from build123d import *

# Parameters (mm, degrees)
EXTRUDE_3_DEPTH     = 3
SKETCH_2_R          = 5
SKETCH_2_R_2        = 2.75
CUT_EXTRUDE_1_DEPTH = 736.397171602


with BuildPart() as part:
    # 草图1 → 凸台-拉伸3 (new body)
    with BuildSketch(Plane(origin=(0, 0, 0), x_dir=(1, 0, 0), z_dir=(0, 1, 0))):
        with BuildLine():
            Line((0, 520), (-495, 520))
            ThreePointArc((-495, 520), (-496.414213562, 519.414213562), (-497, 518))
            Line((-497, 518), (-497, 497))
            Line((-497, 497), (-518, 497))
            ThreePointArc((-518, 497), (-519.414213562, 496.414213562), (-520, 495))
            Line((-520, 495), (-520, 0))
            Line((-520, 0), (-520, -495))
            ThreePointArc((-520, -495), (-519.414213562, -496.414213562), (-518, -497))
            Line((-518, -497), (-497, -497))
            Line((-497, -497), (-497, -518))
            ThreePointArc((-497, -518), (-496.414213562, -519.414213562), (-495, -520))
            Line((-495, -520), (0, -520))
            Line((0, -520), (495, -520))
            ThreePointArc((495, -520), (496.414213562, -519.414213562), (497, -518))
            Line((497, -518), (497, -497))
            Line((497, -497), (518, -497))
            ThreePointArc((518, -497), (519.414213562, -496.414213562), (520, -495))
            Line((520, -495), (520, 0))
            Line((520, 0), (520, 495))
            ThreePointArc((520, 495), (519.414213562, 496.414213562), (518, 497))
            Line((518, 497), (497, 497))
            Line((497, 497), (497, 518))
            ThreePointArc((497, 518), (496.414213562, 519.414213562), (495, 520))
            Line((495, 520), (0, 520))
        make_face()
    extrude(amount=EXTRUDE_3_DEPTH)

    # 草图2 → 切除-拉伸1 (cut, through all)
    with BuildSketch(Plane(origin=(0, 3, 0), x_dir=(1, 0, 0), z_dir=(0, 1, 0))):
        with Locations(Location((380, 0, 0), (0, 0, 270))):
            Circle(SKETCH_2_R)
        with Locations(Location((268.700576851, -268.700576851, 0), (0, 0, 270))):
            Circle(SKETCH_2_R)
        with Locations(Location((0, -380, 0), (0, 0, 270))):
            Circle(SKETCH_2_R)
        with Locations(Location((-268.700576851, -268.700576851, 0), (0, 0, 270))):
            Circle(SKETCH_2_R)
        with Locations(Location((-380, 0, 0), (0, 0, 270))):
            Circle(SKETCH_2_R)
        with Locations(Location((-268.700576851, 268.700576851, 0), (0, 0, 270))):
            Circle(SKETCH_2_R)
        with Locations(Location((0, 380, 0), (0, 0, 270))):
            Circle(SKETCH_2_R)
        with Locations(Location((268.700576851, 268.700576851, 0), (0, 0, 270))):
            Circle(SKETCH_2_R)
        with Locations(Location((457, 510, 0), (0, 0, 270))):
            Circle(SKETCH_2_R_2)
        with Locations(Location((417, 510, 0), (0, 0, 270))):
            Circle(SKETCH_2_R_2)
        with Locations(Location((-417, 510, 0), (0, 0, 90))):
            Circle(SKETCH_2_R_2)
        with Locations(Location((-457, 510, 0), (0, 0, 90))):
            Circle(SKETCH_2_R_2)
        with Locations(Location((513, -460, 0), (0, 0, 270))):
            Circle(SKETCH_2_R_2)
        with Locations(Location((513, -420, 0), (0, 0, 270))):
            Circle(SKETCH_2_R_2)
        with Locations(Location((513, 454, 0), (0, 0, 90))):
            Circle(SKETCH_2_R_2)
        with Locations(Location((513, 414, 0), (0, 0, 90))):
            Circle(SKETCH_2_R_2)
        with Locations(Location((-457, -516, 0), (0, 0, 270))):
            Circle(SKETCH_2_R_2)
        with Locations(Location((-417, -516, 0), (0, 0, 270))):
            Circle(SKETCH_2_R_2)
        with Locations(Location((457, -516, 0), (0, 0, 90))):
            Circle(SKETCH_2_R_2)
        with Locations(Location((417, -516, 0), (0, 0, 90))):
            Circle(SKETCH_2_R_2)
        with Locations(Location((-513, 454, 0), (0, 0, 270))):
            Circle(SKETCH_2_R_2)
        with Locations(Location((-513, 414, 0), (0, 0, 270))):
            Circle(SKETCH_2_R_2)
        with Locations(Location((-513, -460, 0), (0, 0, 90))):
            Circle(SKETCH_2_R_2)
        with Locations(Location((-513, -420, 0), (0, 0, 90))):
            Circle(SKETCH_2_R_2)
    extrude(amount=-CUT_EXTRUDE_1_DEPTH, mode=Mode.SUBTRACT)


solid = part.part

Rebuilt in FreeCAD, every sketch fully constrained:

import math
import FreeCAD as App
import Part
import Sketcher

doc = App.newDocument("Part")
body = doc.addObject("PartDesign::Body", "Body")

sketch1 = body.newObject("Sketcher::SketchObject", "Sketch")
sketch1.AttachmentSupport = (doc.getObject("XZ_Plane"), [""])
sketch1.MapMode = "FlatFace"
sketch1.addGeometry(Part.ArcOfCircle(Part.Circle(App.Vector(-495, -518, 0), App.Vector(0, 0, 1), 2), math.radians(-180), math.radians(-90)), False)
sketch1.addGeometry(Part.LineSegment(App.Vector(-497, -518, 0), App.Vector(-497, -497, 0)), False)
sketch1.addGeometry(Part.LineSegment(App.Vector(-497, -497, 0), App.Vector(-518, -497, 0)), False)
sketch1.addGeometry(Part.ArcOfCircle(Part.Circle(App.Vector(-518, -495, 0), App.Vector(0, 0, 1), 2), math.radians(-180), math.radians(-90)), False)
sketch1.addGeometry(Part.LineSegment(App.Vector(-520, -495, 0), App.Vector(-520, 495, 0)), False)
sketch1.addGeometry(Part.ArcOfCircle(Part.Circle(App.Vector(-518, 495, 0), App.Vector(0, 0, 1), 2), math.radians(90), math.radians(180)), False)
sketch1.addGeometry(Part.LineSegment(App.Vector(-518, 497, 0), App.Vector(-497, 497, 0)), False)
sketch1.addGeometry(Part.LineSegment(App.Vector(-497, 497, 0), App.Vector(-497, 518, 0)), False)
sketch1.addGeometry(Part.ArcOfCircle(Part.Circle(App.Vector(-495, 518, 0), App.Vector(0, 0, 1), 2), math.radians(90), math.radians(180)), False)
sketch1.addGeometry(Part.LineSegment(App.Vector(-495, 520, 0), App.Vector(495, 520, 0)), False)
sketch1.addGeometry(Part.ArcOfCircle(Part.Circle(App.Vector(495, 518, 0), App.Vector(0, 0, 1), 2), math.radians(0), math.radians(90)), False)
sketch1.addGeometry(Part.LineSegment(App.Vector(497, 518, 0), App.Vector(497, 497, 0)), False)
sketch1.addGeometry(Part.LineSegment(App.Vector(497, 497, 0), App.Vector(518, 497, 0)), False)
sketch1.addGeometry(Part.ArcOfCircle(Part.Circle(App.Vector(518, 495, 0), App.Vector(0, 0, 1), 2), math.radians(0), math.radians(90)), False)
sketch1.addGeometry(Part.LineSegment(App.Vector(520, 495, 0), App.Vector(520, -495, 0)), False)
sketch1.addGeometry(Part.ArcOfCircle(Part.Circle(App.Vector(518, -495, 0), App.Vector(0, 0, 1), 2), math.radians(-90), math.radians(0)), False)
sketch1.addGeometry(Part.LineSegment(App.Vector(518, -497, 0), App.Vector(497, -497, 0)), False)
sketch1.addGeometry(Part.LineSegment(App.Vector(497, -497, 0), App.Vector(497, -518, 0)), False)
sketch1.addGeometry(Part.ArcOfCircle(Part.Circle(App.Vector(495, -518, 0), App.Vector(0, 0, 1), 2), math.radians(-90), math.radians(0)), False)
sketch1.addGeometry(Part.LineSegment(App.Vector(495, -520, 0), App.Vector(-495, -520, 0)), False)
sketch1.addConstraint(Sketcher.Constraint("Tangent", 0, 1, 1, 1))
sketch1.addConstraint(Sketcher.Constraint("Coincident", 1, 2, 2, 1))
sketch1.addConstraint(Sketcher.Constraint("Tangent", 2, 2, 3, 2))
sketch1.addConstraint(Sketcher.Constraint("Tangent", 3, 1, 4, 1))
sketch1.addConstraint(Sketcher.Constraint("Tangent", 4, 2, 5, 2))
sketch1.addConstraint(Sketcher.Constraint("Tangent", 5, 1, 6, 1))
sketch1.addConstraint(Sketcher.Constraint("Coincident", 6, 2, 7, 1))
sketch1.addConstraint(Sketcher.Constraint("Tangent", 7, 2, 8, 2))
sketch1.addConstraint(Sketcher.Constraint("Tangent", 8, 1, 9, 1))
sketch1.addConstraint(Sketcher.Constraint("Tangent", 9, 2, 10, 2))
sketch1.addConstraint(Sketcher.Constraint("Tangent", 10, 1, 11, 1))
sketch1.addConstraint(Sketcher.Constraint("Coincident", 11, 2, 12, 1))
sketch1.addConstraint(Sketcher.Constraint("Tangent", 12, 2, 13, 2))
sketch1.addConstraint(Sketcher.Constraint("Tangent", 13, 1, 14, 1))
sketch1.addConstraint(Sketcher.Constraint("Tangent", 14, 2, 15, 2))
sketch1.addConstraint(Sketcher.Constraint("Tangent", 15, 1, 16, 1))
sketch1.addConstraint(Sketcher.Constraint("Coincident", 16, 2, 17, 1))
sketch1.addConstraint(Sketcher.Constraint("Tangent", 17, 2, 18, 2))
sketch1.addConstraint(Sketcher.Constraint("Tangent", 18, 1, 19, 1))
sketch1.addConstraint(Sketcher.Constraint("Tangent", 19, 2, 0, 2))
sketch1.addConstraint(Sketcher.Constraint("Vertical", 1))
sketch1.addConstraint(Sketcher.Constraint("Horizontal", 2))
sketch1.addConstraint(Sketcher.Constraint("Vertical", 4))
sketch1.addConstraint(Sketcher.Constraint("Horizontal", 6))
sketch1.addConstraint(Sketcher.Constraint("Vertical", 7))
sketch1.addConstraint(Sketcher.Constraint("Horizontal", 9))
sketch1.addConstraint(Sketcher.Constraint("Vertical", 11))
sketch1.addConstraint(Sketcher.Constraint("Horizontal", 12))
sketch1.addConstraint(Sketcher.Constraint("Vertical", 14))
sketch1.addConstraint(Sketcher.Constraint("Horizontal", 16))
sketch1.addConstraint(Sketcher.Constraint("Vertical", 17))
sketch1.addConstraint(Sketcher.Constraint("Horizontal", 19))
sketch1.addConstraint(Sketcher.Constraint("Equal", 0, 3))
sketch1.addConstraint(Sketcher.Constraint("Equal", 3, 5))
sketch1.addConstraint(Sketcher.Constraint("Equal", 5, 8))
sketch1.addConstraint(Sketcher.Constraint("Equal", 8, 10))
sketch1.addConstraint(Sketcher.Constraint("Equal", 10, 13))
sketch1.addConstraint(Sketcher.Constraint("Equal", 13, 15))
sketch1.addConstraint(Sketcher.Constraint("Equal", 15, 18))
sketch1.addConstraint(Sketcher.Constraint("Symmetric", 0, 3, 10, 3, -1, 1))
sketch1.addConstraint(Sketcher.Constraint("Symmetric", 3, 3, 13, 3, -1, 1))
sketch1.addConstraint(Sketcher.Constraint("Symmetric", 6, 2, 16, 2, -1, 1))
sketch1.addConstraint(Sketcher.Constraint("Symmetric", 6, 2, 11, 2, -2))
sketch1.addConstraint(Sketcher.Constraint("Equal", 16, 1))
sketch1.addConstraint(Sketcher.Constraint("Equal", 19, 4))
sketch1.addConstraint(Sketcher.Constraint("Radius", 0, 2.0))
sketch1.addConstraint(Sketcher.Constraint("DistanceX", 2, 2, 2, 1, 21.0))
sketch1.addConstraint(Sketcher.Constraint("DistanceX", 9, 1, 9, 2, 990.0))
pad1 = body.newObject("PartDesign::Pad", "Pad")
pad1.Profile = sketch1
pad1.Length = 3
pad1.Reversed = True

sketch2 = body.newObject("Sketcher::SketchObject", "Sketch001")
sketch2.AttachmentSupport = (doc.getObject("XZ_Plane"), [""])
sketch2.MapMode = "FlatFace"
sketch2.AttachmentOffset = App.Placement(App.Vector(0, 0, -3), App.Rotation())
sketch2.addGeometry(Part.Circle(App.Vector(380, 0, 0), App.Vector(0, 0, 1), 5), False)
sketch2.addGeometry(Part.Circle(App.Vector(268.7, 268.7, 0), App.Vector(0, 0, 1), 5), False)
sketch2.addGeometry(Part.Circle(App.Vector(0, 380, 0), App.Vector(0, 0, 1), 5), False)
sketch2.addGeometry(Part.Circle(App.Vector(-268.7, 268.7, 0), App.Vector(0, 0, 1), 5), False)
sketch2.addGeometry(Part.Circle(App.Vector(-380, 0, 0), App.Vector(0, 0, 1), 5), False)
sketch2.addGeometry(Part.Circle(App.Vector(-268.7, -268.7, 0), App.Vector(0, 0, 1), 5), False)
sketch2.addGeometry(Part.Circle(App.Vector(0, -380, 0), App.Vector(0, 0, 1), 5), False)
sketch2.addGeometry(Part.Circle(App.Vector(268.7, -268.7, 0), App.Vector(0, 0, 1), 5), False)
sketch2.addGeometry(Part.Circle(App.Vector(457, -510, 0), App.Vector(0, 0, 1), 2.8), False)
sketch2.addGeometry(Part.Circle(App.Vector(417, -510, 0), App.Vector(0, 0, 1), 2.8), False)
sketch2.addGeometry(Part.Circle(App.Vector(-417, -510, 0), App.Vector(0, 0, 1), 2.8), False)
sketch2.addGeometry(Part.Circle(App.Vector(-457, -510, 0), App.Vector(0, 0, 1), 2.8), False)
sketch2.addGeometry(Part.Circle(App.Vector(513, 460, 0), App.Vector(0, 0, 1), 2.8), False)
sketch2.addGeometry(Part.Circle(App.Vector(513, 420, 0), App.Vector(0, 0, 1), 2.8), False)
sketch2.addGeometry(Part.Circle(App.Vector(513, -454, 0), App.Vector(0, 0, 1), 2.8), False)
sketch2.addGeometry(Part.Circle(App.Vector(513, -414, 0), App.Vector(0, 0, 1), 2.8), False)
sketch2.addGeometry(Part.Circle(App.Vector(-457, 516, 0), App.Vector(0, 0, 1), 2.8), False)
sketch2.addGeometry(Part.Circle(App.Vector(-417, 516, 0), App.Vector(0, 0, 1), 2.8), False)
sketch2.addGeometry(Part.Circle(App.Vector(457, 516, 0), App.Vector(0, 0, 1), 2.8), False)
sketch2.addGeometry(Part.Circle(App.Vector(417, 516, 0), App.Vector(0, 0, 1), 2.8), False)
sketch2.addGeometry(Part.Circle(App.Vector(-513, -454, 0), App.Vector(0, 0, 1), 2.8), False)
sketch2.addGeometry(Part.Circle(App.Vector(-513, -414, 0), App.Vector(0, 0, 1), 2.8), False)
sketch2.addGeometry(Part.Circle(App.Vector(-513, 460, 0), App.Vector(0, 0, 1), 2.8), False)
sketch2.addGeometry(Part.Circle(App.Vector(-513, 420, 0), App.Vector(0, 0, 1), 2.8), False)
sketch2.addConstraint(Sketcher.Constraint("Equal", 0, 1))
sketch2.addConstraint(Sketcher.Constraint("Equal", 1, 2))
sketch2.addConstraint(Sketcher.Constraint("Equal", 2, 3))
sketch2.addConstraint(Sketcher.Constraint("Equal", 3, 4))
sketch2.addConstraint(Sketcher.Constraint("Equal", 4, 5))
sketch2.addConstraint(Sketcher.Constraint("Equal", 5, 6))
sketch2.addConstraint(Sketcher.Constraint("Equal", 6, 7))
sketch2.addConstraint(Sketcher.Constraint("Equal", 8, 9))
sketch2.addConstraint(Sketcher.Constraint("Equal", 9, 10))
sketch2.addConstraint(Sketcher.Constraint("Equal", 10, 11))
sketch2.addConstraint(Sketcher.Constraint("Equal", 11, 12))
sketch2.addConstraint(Sketcher.Constraint("Equal", 12, 13))
sketch2.addConstraint(Sketcher.Constraint("Equal", 13, 14))
sketch2.addConstraint(Sketcher.Constraint("Equal", 14, 15))
sketch2.addConstraint(Sketcher.Constraint("Equal", 15, 16))
sketch2.addConstraint(Sketcher.Constraint("Equal", 16, 17))
sketch2.addConstraint(Sketcher.Constraint("Equal", 17, 18))
sketch2.addConstraint(Sketcher.Constraint("Equal", 18, 19))
sketch2.addConstraint(Sketcher.Constraint("Equal", 19, 20))
sketch2.addConstraint(Sketcher.Constraint("Equal", 20, 21))
sketch2.addConstraint(Sketcher.Constraint("Equal", 21, 22))
sketch2.addConstraint(Sketcher.Constraint("Equal", 22, 23))
sketch2.addConstraint(Sketcher.Constraint("Symmetric", 0, 3, 4, 3, -1, 1))
sketch2.addConstraint(Sketcher.Constraint("Symmetric", 1, 3, 5, 3, -1, 1))
sketch2.addConstraint(Sketcher.Constraint("Symmetric", 2, 3, 6, 3, -1, 1))
sketch2.addConstraint(Sketcher.Constraint("Symmetric", 3, 3, 7, 3, -1, 1))
sketch2.addConstraint(Sketcher.Constraint("Symmetric", 1, 3, 3, 3, -2))
sketch2.addConstraint(Sketcher.Constraint("Symmetric", 9, 3, 10, 3, -2))
sketch2.addConstraint(Sketcher.Constraint("Symmetric", 8, 3, 11, 3, -2))
sketch2.addConstraint(Sketcher.Constraint("Symmetric", 16, 3, 18, 3, -2))
sketch2.addConstraint(Sketcher.Constraint("Symmetric", 17, 3, 19, 3, -2))
sketch2.addConstraint(Sketcher.Constraint("Symmetric", 14, 3, 20, 3, -2))
sketch2.addConstraint(Sketcher.Constraint("Symmetric", 15, 3, 21, 3, -2))
sketch2.addConstraint(Sketcher.Constraint("Symmetric", 12, 3, 22, 3, -2))
sketch2.addConstraint(Sketcher.Constraint("Symmetric", 13, 3, 23, 3, -2))
sketch2.addConstraint(Sketcher.Constraint("PointOnObject", 0, 3, -1))
sketch2.addConstraint(Sketcher.Constraint("PointOnObject", 2, 3, -2))
sketch2.addConstraint(Sketcher.Constraint("Horizontal", 8, 3, 9, 3))
sketch2.addConstraint(Sketcher.Constraint("Horizontal", 16, 3, 17, 3))
sketch2.addConstraint(Sketcher.Constraint("Vertical", 12, 3, 13, 3))
sketch2.addConstraint(Sketcher.Constraint("Vertical", 13, 3, 14, 3))
sketch2.addConstraint(Sketcher.Constraint("Vertical", 14, 3, 15, 3))
sketch2.addConstraint(Sketcher.Constraint("Vertical", 11, 3, 16, 3))
sketch2.addConstraint(Sketcher.Constraint("Vertical", 10, 3, 17, 3))
sketch2.addConstraint(Sketcher.Constraint("Diameter", 0, 10.0))
sketch2.addConstraint(Sketcher.Constraint("Diameter", 8, 5.5))
sketch2.addConstraint(Sketcher.Constraint("DistanceX", -1, 1, 0, 3, 380.0))
sketch2.addConstraint(Sketcher.Constraint("DistanceY", -1, 1, 2, 3, 380.0))
sketch2.addConstraint(Sketcher.Constraint("DistanceX", -1, 1, 8, 3, 457.0))
sketch2.addConstraint(Sketcher.Constraint("DistanceY", 8, 3, -1, 1, 510.0))
sketch2.addConstraint(Sketcher.Constraint("DistanceX", -1, 1, 9, 3, 417.0))
sketch2.addConstraint(Sketcher.Constraint("DistanceX", -1, 1, 12, 3, 513.0))
sketch2.addConstraint(Sketcher.Constraint("DistanceY", -1, 1, 12, 3, 460.0))
sketch2.addConstraint(Sketcher.Constraint("DistanceY", -1, 1, 13, 3, 420.0))
sketch2.addConstraint(Sketcher.Constraint("DistanceY", 14, 3, -1, 1, 454.0))
sketch2.addConstraint(Sketcher.Constraint("DistanceY", 15, 3, -1, 1, 414.0))
sketch2.addConstraint(Sketcher.Constraint("DistanceY", -1, 1, 16, 3, 516.0))
sketch2.addConstraint(Sketcher.Constraint("DistanceX", -1, 1, 1, 3, 268.700577))
sketch2.addConstraint(Sketcher.Constraint("DistanceY", -1, 1, 1, 3, 268.700577))
pocket1 = body.newObject("PartDesign::Pocket", "Pocket")
pocket1.Profile = sketch2
pocket1.Type = "ThroughAll"
pocket1.Reversed = True

doc.recompute()
